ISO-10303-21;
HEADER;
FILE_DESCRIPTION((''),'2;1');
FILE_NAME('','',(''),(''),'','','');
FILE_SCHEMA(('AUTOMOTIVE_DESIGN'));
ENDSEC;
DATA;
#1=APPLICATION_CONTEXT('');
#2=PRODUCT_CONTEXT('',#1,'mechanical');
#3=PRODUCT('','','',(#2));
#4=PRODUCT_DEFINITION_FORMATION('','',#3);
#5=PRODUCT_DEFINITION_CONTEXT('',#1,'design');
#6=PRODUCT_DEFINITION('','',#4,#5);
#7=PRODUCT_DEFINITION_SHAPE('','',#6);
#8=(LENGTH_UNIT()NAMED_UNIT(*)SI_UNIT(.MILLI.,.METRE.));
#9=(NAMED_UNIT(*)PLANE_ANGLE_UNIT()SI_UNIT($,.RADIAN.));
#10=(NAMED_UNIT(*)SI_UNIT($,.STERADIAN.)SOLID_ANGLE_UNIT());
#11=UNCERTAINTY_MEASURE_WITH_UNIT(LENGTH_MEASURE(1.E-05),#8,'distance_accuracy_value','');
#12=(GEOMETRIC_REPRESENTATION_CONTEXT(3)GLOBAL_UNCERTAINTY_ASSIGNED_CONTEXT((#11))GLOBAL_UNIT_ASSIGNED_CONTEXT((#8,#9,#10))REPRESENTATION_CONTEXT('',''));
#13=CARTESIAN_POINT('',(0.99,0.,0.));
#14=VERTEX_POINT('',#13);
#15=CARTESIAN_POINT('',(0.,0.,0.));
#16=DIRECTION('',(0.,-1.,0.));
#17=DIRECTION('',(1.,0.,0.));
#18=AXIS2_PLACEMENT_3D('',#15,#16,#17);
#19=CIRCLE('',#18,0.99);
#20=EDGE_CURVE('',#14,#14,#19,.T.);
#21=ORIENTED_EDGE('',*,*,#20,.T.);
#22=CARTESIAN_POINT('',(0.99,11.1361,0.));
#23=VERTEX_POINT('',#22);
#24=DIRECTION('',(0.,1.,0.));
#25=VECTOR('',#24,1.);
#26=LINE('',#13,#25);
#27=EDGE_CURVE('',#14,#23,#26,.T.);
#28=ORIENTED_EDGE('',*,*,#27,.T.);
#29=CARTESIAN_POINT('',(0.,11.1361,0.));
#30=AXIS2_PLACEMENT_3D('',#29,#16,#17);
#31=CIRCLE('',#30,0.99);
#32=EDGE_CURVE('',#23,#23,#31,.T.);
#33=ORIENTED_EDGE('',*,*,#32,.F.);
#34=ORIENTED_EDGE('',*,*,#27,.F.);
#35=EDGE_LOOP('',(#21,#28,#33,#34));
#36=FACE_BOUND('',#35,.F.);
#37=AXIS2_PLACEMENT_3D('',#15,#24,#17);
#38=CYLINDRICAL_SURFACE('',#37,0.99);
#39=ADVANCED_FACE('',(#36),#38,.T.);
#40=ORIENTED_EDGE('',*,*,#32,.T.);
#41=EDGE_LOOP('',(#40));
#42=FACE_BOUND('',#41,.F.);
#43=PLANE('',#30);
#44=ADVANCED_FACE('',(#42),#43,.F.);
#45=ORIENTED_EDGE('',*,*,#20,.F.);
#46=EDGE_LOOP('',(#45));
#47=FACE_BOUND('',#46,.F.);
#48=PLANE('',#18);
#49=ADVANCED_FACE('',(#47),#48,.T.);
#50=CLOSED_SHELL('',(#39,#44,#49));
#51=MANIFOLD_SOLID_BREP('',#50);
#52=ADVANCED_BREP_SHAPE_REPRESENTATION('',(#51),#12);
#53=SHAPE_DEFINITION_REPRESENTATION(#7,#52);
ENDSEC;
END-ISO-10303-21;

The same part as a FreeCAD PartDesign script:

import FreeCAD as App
import Part
import Sketcher


def add_polygon(sketch, points):
    """Adds a closed chain of lines whose ends are joined by coincident constraints."""
    first, n = sketch.GeometryCount, len(points)
    for a, b in zip(points, points[1:] + points[:1]):
        sketch.addGeometry(Part.LineSegment(App.Vector(*a, 0), App.Vector(*b, 0)), False)
    for i in range(n):
        sketch.addConstraint(Sketcher.Constraint("Coincident", first + i, 2, first + (i + 1) % n, 1))

doc = App.newDocument("Part")
params = doc.addObject("Spreadsheet::Sheet", "Params")
for row, (alias, value) in enumerate([
    ("sketch1_width", "0.99 mm"),
    ("revolution_angle", "360 deg"),
], start=1):
    params.set(f"A{row}", alias)
    params.set(f"B{row}", "=" + value)
    params.setAlias(f"B{row}", alias)

body = doc.addObject("PartDesign::Body", "Body")

# Sketch on XY plane
sketch1 = body.newObject("Sketcher::SketchObject", "Sketch")
sketch1.AttachmentSupport = (doc.getObject("XY_Plane"), [""])
sketch1.MapMode = "FlatFace"
add_polygon(sketch1, [(0, 0), (1, 0), (1, 11.1), (0, 11.1)])  # lines 0-3
sketch1.addConstraint([
    Sketcher.Constraint("Horizontal", 0),
    Sketcher.Constraint("Vertical", 1),
    Sketcher.Constraint("Horizontal", 2),
    Sketcher.Constraint("Vertical", 3),
    Sketcher.Constraint("Coincident", 3, 2, -1, 1),
    Sketcher.Constraint("DistanceX", 0, 1, 0, 2, 0.99),
    Sketcher.Constraint("DistanceY", 1, 1, 1, 2, 11.136),
])
sketch1.setExpression("Constraints[9]", "Params.sketch1_width")
revolution = body.newObject("PartDesign::Revolution", "Revolution")
revolution.Profile = sketch1
revolution.ReferenceAxis = (sketch1, ["V_Axis"])
revolution.setExpression("Angle", "Params.revolution_angle")

doc.recompute()
